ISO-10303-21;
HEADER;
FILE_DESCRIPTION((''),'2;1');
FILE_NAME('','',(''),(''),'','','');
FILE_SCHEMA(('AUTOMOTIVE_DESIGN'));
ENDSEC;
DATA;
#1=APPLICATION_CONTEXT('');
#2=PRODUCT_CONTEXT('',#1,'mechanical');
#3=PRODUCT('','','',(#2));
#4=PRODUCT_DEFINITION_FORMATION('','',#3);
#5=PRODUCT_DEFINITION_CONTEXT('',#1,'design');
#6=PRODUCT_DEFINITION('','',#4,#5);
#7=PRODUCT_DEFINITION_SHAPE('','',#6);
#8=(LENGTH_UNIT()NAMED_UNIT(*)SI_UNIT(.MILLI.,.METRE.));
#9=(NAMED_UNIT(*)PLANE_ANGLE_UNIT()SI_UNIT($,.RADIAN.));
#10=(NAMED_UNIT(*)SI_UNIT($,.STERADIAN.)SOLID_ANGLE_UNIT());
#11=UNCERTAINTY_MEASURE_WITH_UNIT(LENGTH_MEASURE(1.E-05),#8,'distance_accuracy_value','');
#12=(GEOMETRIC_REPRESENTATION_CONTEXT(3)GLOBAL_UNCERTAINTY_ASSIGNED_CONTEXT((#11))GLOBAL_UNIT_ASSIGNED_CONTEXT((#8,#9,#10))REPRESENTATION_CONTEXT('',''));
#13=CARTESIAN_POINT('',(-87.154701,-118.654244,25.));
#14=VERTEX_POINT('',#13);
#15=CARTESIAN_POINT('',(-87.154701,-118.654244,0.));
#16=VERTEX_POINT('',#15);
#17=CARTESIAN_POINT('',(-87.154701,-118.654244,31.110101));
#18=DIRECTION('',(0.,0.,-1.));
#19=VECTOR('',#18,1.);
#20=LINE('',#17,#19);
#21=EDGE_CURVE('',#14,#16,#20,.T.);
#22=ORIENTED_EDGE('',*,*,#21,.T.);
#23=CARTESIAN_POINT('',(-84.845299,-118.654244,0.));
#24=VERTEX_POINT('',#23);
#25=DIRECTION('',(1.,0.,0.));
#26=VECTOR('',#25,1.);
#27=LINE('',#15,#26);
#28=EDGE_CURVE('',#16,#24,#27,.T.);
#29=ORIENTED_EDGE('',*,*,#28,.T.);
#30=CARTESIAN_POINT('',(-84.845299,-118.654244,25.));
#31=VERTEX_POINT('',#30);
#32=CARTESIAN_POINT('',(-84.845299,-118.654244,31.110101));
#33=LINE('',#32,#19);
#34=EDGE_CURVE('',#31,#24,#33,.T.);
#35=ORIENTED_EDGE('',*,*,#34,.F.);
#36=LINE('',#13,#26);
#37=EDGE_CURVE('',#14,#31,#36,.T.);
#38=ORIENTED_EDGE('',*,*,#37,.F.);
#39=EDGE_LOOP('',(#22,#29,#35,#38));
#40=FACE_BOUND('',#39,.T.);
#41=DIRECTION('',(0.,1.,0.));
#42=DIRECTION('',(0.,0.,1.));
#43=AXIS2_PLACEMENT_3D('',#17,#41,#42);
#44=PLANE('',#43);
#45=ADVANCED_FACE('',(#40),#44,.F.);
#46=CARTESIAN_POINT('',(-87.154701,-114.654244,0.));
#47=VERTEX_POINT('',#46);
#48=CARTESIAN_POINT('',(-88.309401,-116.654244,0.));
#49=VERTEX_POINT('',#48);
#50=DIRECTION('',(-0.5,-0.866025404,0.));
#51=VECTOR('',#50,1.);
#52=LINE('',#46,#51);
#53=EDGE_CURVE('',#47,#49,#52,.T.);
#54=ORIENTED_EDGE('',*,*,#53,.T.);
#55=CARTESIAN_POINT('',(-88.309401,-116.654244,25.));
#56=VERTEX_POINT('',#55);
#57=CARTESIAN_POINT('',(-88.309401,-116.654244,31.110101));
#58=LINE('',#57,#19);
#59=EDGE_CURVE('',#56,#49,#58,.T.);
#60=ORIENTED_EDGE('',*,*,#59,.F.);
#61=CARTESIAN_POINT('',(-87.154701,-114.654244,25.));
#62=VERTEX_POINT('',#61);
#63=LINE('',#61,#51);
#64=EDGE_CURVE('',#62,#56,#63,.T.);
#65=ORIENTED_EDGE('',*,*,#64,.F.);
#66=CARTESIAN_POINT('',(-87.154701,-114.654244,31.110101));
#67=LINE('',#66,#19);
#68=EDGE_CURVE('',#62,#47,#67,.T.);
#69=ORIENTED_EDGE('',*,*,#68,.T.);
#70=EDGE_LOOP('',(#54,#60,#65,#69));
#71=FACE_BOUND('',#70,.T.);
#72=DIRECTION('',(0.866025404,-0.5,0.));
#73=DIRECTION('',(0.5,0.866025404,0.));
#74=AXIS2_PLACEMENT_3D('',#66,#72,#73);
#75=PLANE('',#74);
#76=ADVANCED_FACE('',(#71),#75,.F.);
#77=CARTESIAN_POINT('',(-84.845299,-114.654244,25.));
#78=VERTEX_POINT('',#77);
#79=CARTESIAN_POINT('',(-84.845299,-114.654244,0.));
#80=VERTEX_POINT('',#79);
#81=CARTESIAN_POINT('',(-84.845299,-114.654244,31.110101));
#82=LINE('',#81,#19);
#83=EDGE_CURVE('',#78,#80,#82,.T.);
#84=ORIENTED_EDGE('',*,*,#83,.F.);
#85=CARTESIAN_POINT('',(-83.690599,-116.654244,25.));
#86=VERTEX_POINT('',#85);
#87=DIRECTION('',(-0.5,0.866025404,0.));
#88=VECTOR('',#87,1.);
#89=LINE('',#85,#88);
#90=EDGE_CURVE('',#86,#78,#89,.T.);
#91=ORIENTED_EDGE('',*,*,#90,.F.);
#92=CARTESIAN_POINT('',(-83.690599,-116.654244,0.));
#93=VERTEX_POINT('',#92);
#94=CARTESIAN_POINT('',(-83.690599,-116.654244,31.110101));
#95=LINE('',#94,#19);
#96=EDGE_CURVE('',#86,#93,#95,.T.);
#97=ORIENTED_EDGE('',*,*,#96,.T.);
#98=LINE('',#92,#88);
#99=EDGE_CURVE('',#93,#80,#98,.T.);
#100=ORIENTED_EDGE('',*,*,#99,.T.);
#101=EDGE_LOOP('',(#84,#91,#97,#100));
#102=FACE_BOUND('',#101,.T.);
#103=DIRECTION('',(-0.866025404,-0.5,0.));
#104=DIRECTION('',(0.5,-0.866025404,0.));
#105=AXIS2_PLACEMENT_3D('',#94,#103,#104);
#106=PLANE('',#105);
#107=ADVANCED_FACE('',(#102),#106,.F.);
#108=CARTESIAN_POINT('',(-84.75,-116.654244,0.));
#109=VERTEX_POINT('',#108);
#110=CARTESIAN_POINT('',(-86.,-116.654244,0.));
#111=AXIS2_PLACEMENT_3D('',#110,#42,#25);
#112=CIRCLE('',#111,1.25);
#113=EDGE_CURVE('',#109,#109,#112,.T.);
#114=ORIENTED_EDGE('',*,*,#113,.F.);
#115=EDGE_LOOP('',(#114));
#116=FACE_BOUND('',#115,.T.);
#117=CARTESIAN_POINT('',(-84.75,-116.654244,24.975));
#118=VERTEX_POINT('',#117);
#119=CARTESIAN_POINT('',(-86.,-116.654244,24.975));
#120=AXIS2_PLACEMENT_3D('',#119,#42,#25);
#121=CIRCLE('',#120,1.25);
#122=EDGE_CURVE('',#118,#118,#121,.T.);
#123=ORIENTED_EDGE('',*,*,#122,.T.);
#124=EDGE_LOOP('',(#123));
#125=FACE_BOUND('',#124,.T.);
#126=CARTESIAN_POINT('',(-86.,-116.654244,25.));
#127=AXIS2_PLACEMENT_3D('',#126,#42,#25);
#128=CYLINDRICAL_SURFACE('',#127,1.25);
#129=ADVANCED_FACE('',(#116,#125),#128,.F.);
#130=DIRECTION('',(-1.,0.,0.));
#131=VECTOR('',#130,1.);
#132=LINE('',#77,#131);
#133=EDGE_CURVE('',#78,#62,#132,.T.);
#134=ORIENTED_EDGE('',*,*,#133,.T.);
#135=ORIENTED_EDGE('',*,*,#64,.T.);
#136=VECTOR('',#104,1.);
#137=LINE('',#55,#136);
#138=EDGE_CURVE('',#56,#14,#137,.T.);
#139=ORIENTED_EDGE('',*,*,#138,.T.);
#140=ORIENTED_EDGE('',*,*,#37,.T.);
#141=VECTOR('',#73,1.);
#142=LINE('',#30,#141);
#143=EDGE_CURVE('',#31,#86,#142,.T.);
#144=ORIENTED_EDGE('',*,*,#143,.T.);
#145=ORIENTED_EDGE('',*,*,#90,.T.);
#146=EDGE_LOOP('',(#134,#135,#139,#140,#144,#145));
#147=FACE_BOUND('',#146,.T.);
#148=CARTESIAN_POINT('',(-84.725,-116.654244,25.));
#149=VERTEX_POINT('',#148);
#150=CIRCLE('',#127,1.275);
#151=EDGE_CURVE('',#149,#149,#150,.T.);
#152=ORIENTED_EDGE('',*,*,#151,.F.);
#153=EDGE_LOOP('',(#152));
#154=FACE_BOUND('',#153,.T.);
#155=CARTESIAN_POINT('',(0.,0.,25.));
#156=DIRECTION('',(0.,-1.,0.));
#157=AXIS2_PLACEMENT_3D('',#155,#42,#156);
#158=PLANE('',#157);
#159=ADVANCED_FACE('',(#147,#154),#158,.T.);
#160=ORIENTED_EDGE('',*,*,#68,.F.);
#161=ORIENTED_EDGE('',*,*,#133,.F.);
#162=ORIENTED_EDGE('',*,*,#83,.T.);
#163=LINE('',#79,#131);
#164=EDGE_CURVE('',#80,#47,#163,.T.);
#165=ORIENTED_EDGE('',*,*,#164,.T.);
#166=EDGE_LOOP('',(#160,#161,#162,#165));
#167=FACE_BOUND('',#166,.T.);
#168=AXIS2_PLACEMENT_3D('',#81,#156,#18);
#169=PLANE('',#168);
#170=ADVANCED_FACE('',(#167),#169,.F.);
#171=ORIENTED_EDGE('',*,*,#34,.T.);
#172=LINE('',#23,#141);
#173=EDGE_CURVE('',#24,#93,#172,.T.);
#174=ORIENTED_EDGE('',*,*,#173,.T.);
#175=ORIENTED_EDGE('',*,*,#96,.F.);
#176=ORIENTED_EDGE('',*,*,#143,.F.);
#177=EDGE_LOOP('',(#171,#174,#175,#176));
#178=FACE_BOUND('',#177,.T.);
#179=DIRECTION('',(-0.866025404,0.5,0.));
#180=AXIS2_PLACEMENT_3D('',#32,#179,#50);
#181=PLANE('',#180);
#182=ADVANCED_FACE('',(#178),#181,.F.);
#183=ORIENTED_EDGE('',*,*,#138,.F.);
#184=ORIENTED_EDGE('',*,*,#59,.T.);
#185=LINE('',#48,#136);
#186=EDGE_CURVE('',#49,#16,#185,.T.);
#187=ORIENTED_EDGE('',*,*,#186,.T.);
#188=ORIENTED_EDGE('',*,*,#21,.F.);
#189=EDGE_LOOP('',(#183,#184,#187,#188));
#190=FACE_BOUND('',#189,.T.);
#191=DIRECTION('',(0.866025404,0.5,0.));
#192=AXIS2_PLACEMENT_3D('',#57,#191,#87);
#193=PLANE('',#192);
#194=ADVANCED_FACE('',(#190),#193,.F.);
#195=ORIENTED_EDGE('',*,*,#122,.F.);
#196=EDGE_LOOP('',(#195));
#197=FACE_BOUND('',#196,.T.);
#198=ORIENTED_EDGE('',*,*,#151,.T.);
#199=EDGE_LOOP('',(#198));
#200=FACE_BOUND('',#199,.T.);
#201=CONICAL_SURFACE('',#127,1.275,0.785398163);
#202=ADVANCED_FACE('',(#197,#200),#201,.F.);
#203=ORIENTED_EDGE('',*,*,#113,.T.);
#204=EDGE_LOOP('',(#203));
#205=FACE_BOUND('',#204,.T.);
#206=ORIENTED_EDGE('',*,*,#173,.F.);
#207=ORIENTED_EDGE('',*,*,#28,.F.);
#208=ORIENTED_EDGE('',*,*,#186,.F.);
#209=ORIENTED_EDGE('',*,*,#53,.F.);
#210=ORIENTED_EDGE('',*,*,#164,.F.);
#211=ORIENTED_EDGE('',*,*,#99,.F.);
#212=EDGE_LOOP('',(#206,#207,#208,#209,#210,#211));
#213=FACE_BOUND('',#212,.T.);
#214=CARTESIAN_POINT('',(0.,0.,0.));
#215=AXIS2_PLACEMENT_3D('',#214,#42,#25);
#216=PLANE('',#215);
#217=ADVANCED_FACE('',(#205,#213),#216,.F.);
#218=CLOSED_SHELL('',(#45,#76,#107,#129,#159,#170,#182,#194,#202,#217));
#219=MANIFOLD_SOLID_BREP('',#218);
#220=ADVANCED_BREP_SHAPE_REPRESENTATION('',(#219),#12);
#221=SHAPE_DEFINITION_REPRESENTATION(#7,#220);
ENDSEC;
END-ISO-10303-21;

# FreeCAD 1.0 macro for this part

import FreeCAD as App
import Part
import Sketcher
Q = App.Units.Quantity


def add_polygon(sketch, points):
    """Adds a closed chain of lines whose ends are joined by coincident constraints."""
    first, n = sketch.GeometryCount, len(points)
    for a, b in zip(points, points[1:] + points[:1]):
        sketch.addGeometry(Part.LineSegment(App.Vector(*a, 0), App.Vector(*b, 0)), False)
    for i in range(n):
        sketch.addConstraint(Sketcher.Constraint("Coincident", first + i, 2, first + (i + 1) % n, 1))

doc = App.newDocument("Part")
body = doc.addObject("PartDesign::Body", "Body")

sketch1 = body.newObject("Sketcher::SketchObject", "Sketch")
sketch1.AttachmentSupport = (doc.getObject("XY_Plane"), [""])
sketch1.MapMode = "FlatFace"
add_polygon(sketch1, [(-83.7, -116.7), (-84.8, -114.7), (-87.2, -114.7), (-88.3, -116.7), (-87.2, -118.7), (-84.8, -118.7)])
sketch1.addConstraint([
    Sketcher.Constraint("Horizontal", 1),
    Sketcher.Constraint("Horizontal", 4),
    Sketcher.Constraint("Parallel", 0, 3),
    Sketcher.Constraint("Parallel", 2, 5),
    Sketcher.Constraint("Horizontal", 2, 2, 5, 2),
    Sketcher.Constraint("Vertical", 1, 2, 3, 2),
    Sketcher.Constraint("Vertical", 0, 2, 4, 2),
    Sketcher.Constraint("Angle", 0, Q("120 deg")),
    Sketcher.Constraint("DistanceY", 2, 2, 1, 2, 2.0),
    Sketcher.Constraint("DistanceX", 1, 2, 1, 1, 2.309401),
    Sketcher.Constraint("DistanceX", 0, 2, -1, 1, 84.845299),
    Sketcher.Constraint("DistanceY", 0, 2, -1, 1, 114.654244),
])
pad1 = body.newObject("PartDesign::Pad", "Pad")
pad1.Profile = sketch1
pad1.Length = 25

sketch2 = body.newObject("Sketcher::SketchObject", "Sketch001")
sketch2.AttachmentSupport = (doc.getObject("XY_Plane"), [""])
sketch2.MapMode = "FlatFace"
sketch2.AttachmentOffset = App.Placement(App.Vector(0, 0, 25), App.Rotation())
sketch2.addGeometry(Part.Circle(App.Vector(-86, -116.7, 0), App.Vector(0, 0, 1), 1.2), False)
sketch2.addConstraint([
    Sketcher.Constraint("Diameter", 0, 2.5),
    Sketcher.Constraint("DistanceX", 0, 3, -1, 1, 86.0),
    Sketcher.Constraint("DistanceY", 0, 3, -1, 1, 116.654244),
])
doc.recompute()
hole = body.newObject("PartDesign::Hole", "Hole")
hole.Profile = sketch2
hole.ThreadType = "None"
hole.Diameter = 2.5
hole.DepthType = "ThroughAll"
hole.HoleCutType = "Countersink"
hole.HoleCutDiameter = 2.55
hole.HoleCutCountersinkAngle = 90

doc.recompute()
